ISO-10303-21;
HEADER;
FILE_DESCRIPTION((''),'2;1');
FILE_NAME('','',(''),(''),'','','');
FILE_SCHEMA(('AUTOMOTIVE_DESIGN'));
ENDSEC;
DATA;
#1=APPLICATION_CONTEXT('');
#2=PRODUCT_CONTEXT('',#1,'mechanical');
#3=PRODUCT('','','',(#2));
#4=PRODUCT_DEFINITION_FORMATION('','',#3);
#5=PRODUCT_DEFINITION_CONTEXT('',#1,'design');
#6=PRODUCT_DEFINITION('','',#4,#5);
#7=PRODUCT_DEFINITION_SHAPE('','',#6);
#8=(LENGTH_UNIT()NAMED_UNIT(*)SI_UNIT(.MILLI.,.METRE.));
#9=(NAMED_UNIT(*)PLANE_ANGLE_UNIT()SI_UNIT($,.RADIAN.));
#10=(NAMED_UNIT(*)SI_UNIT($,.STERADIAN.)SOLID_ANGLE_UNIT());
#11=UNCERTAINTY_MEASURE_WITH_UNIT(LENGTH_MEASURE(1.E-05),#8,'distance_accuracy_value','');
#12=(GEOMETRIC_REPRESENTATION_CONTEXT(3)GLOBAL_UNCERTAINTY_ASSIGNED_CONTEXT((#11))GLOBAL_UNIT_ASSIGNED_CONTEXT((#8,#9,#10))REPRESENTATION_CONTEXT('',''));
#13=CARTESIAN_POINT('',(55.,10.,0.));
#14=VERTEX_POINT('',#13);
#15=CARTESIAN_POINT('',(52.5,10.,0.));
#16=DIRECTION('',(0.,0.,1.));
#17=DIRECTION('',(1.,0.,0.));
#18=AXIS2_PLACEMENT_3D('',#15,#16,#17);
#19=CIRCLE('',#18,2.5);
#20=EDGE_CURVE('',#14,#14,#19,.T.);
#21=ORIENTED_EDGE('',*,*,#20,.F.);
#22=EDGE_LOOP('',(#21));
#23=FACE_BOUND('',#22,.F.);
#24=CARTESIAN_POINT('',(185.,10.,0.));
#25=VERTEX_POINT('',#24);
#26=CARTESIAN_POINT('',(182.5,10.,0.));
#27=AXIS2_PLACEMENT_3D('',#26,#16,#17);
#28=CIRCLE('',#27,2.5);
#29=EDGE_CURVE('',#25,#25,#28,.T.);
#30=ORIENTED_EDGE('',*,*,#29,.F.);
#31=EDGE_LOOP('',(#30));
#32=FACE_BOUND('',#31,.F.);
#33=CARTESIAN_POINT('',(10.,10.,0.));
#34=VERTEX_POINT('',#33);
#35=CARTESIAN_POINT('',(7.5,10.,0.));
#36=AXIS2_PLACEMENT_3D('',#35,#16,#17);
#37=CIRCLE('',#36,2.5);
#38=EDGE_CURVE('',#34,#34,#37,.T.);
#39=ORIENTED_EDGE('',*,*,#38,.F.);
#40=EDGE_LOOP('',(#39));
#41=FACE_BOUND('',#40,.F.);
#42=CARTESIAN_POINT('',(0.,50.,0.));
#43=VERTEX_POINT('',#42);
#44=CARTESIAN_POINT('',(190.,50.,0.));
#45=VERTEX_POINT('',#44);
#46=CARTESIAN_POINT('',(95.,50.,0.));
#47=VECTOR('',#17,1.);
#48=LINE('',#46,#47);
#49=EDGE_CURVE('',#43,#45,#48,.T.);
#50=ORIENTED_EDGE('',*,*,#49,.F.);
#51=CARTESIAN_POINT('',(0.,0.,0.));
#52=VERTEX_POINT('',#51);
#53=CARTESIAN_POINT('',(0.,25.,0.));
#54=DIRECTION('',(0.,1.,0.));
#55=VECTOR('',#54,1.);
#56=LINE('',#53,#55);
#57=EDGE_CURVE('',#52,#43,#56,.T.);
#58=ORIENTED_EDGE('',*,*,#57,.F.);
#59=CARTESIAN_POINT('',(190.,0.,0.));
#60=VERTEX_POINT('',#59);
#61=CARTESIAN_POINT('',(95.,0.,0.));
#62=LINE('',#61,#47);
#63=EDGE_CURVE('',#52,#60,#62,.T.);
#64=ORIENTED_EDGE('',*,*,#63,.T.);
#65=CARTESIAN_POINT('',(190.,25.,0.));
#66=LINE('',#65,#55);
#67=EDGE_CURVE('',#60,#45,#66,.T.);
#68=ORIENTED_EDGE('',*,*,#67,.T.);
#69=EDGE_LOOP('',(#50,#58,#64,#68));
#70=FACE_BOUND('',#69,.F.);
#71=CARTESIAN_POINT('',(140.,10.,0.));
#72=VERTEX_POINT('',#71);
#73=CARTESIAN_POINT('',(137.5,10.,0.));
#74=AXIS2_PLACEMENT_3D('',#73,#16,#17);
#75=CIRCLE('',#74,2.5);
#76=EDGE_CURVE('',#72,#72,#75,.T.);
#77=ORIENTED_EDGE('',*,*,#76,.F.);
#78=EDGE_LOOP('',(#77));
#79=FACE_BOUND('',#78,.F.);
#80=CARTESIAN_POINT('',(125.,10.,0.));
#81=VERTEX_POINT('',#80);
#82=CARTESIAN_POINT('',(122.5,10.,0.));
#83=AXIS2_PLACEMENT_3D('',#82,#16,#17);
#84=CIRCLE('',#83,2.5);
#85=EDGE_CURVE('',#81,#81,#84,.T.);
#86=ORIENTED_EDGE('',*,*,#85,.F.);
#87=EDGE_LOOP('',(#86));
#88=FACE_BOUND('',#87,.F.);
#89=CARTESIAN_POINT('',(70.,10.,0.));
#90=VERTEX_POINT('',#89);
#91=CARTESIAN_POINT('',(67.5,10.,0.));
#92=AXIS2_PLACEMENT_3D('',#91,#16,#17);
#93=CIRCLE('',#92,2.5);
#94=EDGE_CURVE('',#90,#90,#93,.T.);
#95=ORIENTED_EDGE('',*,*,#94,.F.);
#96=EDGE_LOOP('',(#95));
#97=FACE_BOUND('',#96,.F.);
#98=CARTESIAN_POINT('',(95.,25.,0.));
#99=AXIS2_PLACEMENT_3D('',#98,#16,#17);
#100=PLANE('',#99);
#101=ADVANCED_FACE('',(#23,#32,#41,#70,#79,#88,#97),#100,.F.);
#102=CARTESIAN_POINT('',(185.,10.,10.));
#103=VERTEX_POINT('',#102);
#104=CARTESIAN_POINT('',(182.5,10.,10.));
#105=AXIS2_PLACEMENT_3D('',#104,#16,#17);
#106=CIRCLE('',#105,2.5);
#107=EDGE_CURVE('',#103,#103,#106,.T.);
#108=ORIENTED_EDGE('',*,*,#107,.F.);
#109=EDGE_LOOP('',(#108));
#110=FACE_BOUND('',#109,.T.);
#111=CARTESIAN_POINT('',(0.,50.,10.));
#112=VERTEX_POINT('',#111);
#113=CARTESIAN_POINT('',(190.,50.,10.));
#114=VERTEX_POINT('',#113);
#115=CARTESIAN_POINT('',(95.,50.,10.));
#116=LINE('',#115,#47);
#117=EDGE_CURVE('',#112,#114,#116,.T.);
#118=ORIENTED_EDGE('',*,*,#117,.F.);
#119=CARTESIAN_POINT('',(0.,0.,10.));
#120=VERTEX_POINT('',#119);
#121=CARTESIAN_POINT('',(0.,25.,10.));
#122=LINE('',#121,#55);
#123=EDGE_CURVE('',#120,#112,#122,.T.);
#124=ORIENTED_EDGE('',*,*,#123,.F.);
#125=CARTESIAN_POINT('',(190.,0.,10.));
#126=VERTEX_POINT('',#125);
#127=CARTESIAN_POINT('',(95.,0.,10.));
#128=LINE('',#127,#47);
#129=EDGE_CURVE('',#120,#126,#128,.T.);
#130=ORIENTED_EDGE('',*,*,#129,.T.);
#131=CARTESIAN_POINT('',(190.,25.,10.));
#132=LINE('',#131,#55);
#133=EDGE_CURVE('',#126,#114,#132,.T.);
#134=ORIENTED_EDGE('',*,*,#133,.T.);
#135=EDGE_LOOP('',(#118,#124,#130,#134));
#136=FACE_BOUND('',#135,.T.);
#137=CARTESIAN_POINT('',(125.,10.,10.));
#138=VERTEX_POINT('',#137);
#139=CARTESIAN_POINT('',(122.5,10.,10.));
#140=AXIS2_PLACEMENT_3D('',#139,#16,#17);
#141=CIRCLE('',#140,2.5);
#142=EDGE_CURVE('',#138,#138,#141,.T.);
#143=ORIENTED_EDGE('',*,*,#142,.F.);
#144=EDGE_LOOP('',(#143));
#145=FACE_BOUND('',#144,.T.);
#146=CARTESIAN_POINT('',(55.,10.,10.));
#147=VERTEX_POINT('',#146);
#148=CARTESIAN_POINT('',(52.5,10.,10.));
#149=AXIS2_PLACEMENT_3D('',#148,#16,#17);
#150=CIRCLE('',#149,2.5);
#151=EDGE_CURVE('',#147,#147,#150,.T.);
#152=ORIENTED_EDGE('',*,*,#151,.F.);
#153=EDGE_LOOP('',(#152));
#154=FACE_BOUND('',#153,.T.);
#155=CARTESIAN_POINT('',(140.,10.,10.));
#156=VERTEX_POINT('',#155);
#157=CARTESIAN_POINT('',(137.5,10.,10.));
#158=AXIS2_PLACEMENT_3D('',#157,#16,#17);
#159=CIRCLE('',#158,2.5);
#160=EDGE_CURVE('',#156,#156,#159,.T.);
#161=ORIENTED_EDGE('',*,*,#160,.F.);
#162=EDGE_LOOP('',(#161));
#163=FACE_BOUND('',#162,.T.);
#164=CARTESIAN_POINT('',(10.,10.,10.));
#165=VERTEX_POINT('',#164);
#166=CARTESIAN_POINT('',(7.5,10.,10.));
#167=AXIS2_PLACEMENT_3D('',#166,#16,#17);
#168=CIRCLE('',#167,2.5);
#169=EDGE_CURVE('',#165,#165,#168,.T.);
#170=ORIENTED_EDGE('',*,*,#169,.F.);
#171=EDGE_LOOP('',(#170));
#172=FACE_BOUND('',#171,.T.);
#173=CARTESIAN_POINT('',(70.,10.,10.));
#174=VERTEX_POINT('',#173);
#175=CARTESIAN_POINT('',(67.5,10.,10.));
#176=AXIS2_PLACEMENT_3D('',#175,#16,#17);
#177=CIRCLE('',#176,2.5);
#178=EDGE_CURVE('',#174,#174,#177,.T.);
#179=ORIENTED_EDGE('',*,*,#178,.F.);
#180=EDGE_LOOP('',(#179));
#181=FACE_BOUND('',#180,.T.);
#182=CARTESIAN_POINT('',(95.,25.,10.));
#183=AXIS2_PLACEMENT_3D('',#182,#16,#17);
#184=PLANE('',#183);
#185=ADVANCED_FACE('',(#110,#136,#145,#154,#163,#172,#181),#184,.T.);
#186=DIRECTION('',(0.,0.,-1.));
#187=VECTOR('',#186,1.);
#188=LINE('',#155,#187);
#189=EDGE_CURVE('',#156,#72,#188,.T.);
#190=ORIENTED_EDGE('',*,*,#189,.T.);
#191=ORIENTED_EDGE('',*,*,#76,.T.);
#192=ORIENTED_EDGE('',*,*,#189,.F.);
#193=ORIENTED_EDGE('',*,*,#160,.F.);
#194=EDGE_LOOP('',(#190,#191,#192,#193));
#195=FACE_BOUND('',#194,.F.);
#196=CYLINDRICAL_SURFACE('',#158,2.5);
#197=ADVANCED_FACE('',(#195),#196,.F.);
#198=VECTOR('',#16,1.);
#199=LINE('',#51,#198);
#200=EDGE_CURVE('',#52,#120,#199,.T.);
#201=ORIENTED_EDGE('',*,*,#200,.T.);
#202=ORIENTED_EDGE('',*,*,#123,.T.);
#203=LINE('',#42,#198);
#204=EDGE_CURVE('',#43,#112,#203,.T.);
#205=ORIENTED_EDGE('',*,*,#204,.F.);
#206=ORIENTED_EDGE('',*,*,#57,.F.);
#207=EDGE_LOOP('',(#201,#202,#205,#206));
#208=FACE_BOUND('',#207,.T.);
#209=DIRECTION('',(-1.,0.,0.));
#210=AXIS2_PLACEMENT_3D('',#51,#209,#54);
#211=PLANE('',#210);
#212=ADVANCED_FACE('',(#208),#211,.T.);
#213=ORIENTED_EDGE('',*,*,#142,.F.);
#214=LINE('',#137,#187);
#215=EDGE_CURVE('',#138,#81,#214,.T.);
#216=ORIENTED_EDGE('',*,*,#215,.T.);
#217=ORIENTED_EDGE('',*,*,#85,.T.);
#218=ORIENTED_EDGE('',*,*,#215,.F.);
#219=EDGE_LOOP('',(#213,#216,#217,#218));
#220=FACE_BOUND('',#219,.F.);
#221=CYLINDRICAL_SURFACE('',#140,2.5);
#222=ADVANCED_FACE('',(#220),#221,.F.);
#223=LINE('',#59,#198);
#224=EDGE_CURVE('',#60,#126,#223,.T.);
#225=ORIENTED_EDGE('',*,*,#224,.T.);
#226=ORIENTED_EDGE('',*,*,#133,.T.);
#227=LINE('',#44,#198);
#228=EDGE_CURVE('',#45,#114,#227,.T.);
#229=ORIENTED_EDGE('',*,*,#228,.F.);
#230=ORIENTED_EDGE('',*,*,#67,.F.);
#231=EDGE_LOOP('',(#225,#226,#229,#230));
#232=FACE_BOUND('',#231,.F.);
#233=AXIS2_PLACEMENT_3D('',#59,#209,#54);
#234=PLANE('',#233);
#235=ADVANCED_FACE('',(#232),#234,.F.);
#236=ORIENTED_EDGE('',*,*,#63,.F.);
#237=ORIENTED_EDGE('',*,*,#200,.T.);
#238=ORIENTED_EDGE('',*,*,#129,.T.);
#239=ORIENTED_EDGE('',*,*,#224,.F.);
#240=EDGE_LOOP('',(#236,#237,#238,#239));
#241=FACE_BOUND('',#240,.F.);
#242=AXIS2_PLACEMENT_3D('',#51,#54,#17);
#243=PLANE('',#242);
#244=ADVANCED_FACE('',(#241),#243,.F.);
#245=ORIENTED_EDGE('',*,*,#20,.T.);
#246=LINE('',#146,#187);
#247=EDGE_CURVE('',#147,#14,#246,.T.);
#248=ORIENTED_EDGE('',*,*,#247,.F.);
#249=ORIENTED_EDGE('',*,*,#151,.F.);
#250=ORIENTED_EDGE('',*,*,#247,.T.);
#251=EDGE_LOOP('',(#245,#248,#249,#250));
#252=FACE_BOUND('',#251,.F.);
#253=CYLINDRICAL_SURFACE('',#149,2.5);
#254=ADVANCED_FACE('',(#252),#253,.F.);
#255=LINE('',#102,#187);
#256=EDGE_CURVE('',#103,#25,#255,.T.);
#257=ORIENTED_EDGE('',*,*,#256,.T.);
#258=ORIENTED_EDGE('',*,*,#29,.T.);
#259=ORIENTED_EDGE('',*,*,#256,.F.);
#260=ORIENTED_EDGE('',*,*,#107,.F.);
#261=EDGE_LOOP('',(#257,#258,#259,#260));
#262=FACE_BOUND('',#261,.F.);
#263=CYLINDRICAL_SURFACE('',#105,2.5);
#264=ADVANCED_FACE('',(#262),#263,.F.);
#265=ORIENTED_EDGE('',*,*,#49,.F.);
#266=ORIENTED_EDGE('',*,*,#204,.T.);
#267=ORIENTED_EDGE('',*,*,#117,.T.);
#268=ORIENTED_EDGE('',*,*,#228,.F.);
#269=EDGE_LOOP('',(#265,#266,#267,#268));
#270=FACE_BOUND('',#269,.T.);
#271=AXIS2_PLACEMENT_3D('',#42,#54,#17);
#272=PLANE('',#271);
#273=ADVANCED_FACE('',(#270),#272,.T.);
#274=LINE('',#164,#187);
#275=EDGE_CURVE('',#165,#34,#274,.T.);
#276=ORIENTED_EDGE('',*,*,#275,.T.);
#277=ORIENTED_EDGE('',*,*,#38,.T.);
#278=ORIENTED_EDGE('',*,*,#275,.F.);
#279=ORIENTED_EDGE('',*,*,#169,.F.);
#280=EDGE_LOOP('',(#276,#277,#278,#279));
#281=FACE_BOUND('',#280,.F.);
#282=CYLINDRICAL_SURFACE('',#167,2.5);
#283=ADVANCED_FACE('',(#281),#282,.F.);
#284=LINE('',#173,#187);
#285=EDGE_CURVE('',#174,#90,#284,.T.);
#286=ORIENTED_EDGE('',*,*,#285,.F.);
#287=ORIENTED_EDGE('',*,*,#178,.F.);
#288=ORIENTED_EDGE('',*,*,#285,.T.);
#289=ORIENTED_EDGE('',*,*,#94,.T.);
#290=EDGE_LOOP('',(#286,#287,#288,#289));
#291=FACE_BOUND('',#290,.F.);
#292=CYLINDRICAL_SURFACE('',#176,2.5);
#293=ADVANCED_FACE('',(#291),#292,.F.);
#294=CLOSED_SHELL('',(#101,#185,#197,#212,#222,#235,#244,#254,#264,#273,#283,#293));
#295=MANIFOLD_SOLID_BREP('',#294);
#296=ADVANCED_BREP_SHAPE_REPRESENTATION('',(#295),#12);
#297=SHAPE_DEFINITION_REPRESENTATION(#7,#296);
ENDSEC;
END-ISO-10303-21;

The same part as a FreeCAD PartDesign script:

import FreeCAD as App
import Part
import Sketcher
from FreeCAD import Vector
Q = App.Units.Quantity


def add_polygon(sketch, points):
    """Adds a closed chain of lines whose ends are joined by coincident constraints."""
    first, n = sketch.GeometryCount, len(points)
    for a, b in zip(points, points[1:] + points[:1]):
        sketch.addGeometry(Part.LineSegment(App.Vector(*a, 0), App.Vector(*b, 0)), False)
    for i in range(n):
        sketch.addConstraint(Sketcher.Constraint("Coincident", first + i, 2, first + (i + 1) % n, 1))

doc = App.newDocument("Part")
params = doc.addObject("Spreadsheet::Sheet", "Params")
for row, (alias, value) in enumerate([
    ("sketch1_width", "190 mm"),
    ("sketch1_height", "50 mm"),
    ("pad1_length", "10 mm"),
    ("sketch2_diameter", "5 mm"),
    ("linearpattern_pitch", "45 mm"),
    ("linearpattern2_pitch", "60 mm"),
    ("linearpattern3_pitch", "115 mm"),
    ("linearpattern4_pitch", "130 mm"),
    ("linearpattern5_pitch", "175 mm"),
], start=1):
    params.set(f"A{row}", alias)
    params.set(f"B{row}", "=" + value)
    params.setAlias(f"B{row}", alias)

body = doc.addObject("PartDesign::Body", "Body")

# Sketch on XY plane
sketch1 = body.newObject("Sketcher::SketchObject", "Sketch")
sketch1.AttachmentSupport = (doc.getObject("XY_Plane"), [""])
sketch1.MapMode = "FlatFace"
add_polygon(sketch1, [(0, 50), (0, 0), (190, 0), (190, 50)])  # lines 0-3
sketch1.addConstraint(Sketcher.Constraint("Vertical", 0))
sketch1.addConstraint(Sketcher.Constraint("Horizontal", 1))
sketch1.addConstraint(Sketcher.Constraint("Vertical", 2))
sketch1.addConstraint(Sketcher.Constraint("Horizontal", 3))
sketch1.addConstraint(Sketcher.Constraint("Coincident", 0, 2, -1, 1))
sketch1.addConstraint(Sketcher.Constraint("DistanceX", 1, 1, 1, 2, Q("190 mm")))
sketch1.addConstraint(Sketcher.Constraint("DistanceY", 0, 2, 0, 1, Q("50 mm")))
sketch1.setExpression("Constraints[9]", "Params.sketch1_width")
sketch1.setExpression("Constraints[10]", "Params.sketch1_height")
pad1 = body.newObject("PartDesign::Pad", "Pad")
pad1.Profile = sketch1
pad1.setExpression("Length", "Params.pad1_length")

# Sketch on XY plane
sketch2 = body.newObject("Sketcher::SketchObject", "Sketch001")
sketch2.AttachmentSupport = (doc.getObject("XY_Plane"), [""])
sketch2.MapMode = "FlatFace"
sketch2.AttachmentOffset = App.Placement(Vector(0, 0, 10), App.Rotation())
sketch2.addGeometry(Part.Circle(Vector(7.5, 10, 0), Vector(0, 0, 1), 2.5), False)
sketch2.addConstraint(Sketcher.Constraint("Diameter", 0, Q("5 mm")))
sketch2.addConstraint(Sketcher.Constraint("DistanceY", -1, 1, 0, 3, Q("10 mm")))
sketch2.addConstraint(Sketcher.Constraint("DistanceX", -1, 1, 0, 3, Q("7.5 mm")))
sketch2.setExpression("Constraints[0]", "Params.sketch2_diameter")
pocket1 = body.newObject("PartDesign::Pocket", "Pocket")
pocket1.Profile = sketch2
pocket1.Type = "ThroughAll"
doc.recompute()

linearpattern = body.newObject("PartDesign::LinearPattern", "LinearPattern")
linearpattern.Originals = [pocket1]
linearpattern.Direction = (doc.getObject("X_Axis"), [""])
linearpattern.Mode = "offset"
linearpattern.setExpression("Offset", "Params.linearpattern_pitch")
linearpattern.Occurrences = 2
body.Tip = linearpattern
doc.recompute()

linearpattern2 = body.newObject("PartDesign::LinearPattern", "LinearPattern001")
linearpattern2.Originals = [pocket1]
linearpattern2.Direction = (doc.getObject("X_Axis"), [""])
linearpattern2.Mode = "offset"
linearpattern2.setExpression("Offset", "Params.linearpattern2_pitch")
linearpattern2.Occurrences = 2
body.Tip = linearpattern2
doc.recompute()

linearpattern3 = body.newObject("PartDesign::LinearPattern", "LinearPattern002")
linearpattern3.Originals = [pocket1]
linearpattern3.Direction = (doc.getObject("X_Axis"), [""])
linearpattern3.Mode = "offset"
linearpattern3.setExpression("Offset", "Params.linearpattern3_pitch")
linearpattern3.Occurrences = 2
body.Tip = linearpattern3
doc.recompute()

linearpattern4 = body.newObject("PartDesign::LinearPattern", "LinearPattern003")
linearpattern4.Originals = [pocket1]
linearpattern4.Direction = (doc.getObject("X_Axis"), [""])
linearpattern4.Mode = "offset"
linearpattern4.setExpression("Offset", "Params.linearpattern4_pitch")
linearpattern4.Occurrences = 2
body.Tip = linearpattern4
doc.recompute()

linearpattern5 = body.newObject("PartDesign::LinearPattern", "LinearPattern004")
linearpattern5.Originals = [pocket1]
linearpattern5.Direction = (doc.getObject("X_Axis"), [""])
linearpattern5.Mode = "offset"
linearpattern5.setExpression("Offset", "Params.linearpattern5_pitch")
linearpattern5.Occurrences = 2
body.Tip = linearpattern5

doc.recompute()
